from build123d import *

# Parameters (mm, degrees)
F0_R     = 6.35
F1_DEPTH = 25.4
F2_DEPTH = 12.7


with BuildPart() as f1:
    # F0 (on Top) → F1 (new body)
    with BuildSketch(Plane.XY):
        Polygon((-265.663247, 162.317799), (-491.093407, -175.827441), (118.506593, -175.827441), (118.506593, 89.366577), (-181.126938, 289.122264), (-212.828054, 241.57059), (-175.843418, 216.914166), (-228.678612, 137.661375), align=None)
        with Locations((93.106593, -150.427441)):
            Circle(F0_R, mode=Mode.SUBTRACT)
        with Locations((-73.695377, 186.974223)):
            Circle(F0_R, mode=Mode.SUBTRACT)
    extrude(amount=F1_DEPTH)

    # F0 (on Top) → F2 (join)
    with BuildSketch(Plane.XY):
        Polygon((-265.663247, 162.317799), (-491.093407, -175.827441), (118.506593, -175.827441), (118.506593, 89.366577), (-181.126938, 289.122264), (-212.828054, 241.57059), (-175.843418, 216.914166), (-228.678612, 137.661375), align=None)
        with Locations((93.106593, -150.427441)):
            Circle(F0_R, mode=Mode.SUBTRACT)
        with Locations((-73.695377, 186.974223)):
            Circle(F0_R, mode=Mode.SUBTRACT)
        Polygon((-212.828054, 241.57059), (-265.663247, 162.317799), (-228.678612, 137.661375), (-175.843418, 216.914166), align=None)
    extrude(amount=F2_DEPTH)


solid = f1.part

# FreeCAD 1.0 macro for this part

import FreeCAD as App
import Part
import Sketcher
Q = App.Units.Quantity


def add_polygon(sketch, points):
    """Adds a closed chain of lines whose ends are joined by coincident constraints."""
    first, n = sketch.GeometryCount, len(points)
    for a, b in zip(points, points[1:] + points[:1]):
        sketch.addGeometry(Part.LineSegment(App.Vector(*a, 0), App.Vector(*b, 0)), False)
    for i in range(n):
        sketch.addConstraint(Sketcher.Constraint("Coincident", first + i, 2, first + (i + 1) % n, 1))

doc = App.newDocument("Part")
body = doc.addObject("PartDesign::Body", "Body")

# Sketch on XY plane
sketch1 = doc.addObject("Sketcher::SketchObject", "Sketch")
body.addObject(sketch1)
sketch1.AttachmentSupport = (doc.XY_Plane, [""])
sketch1.MapMode = "FlatFace"
add_polygon(sketch1, [(-265.663247, 162.317799), (-491.093407, -175.827441), (118.506593, -175.827441), (118.506593, 89.366577), (-181.126938, 289.122264), (-212.828054, 241.57059), (-175.843418, 216.914166), (-228.678612, 137.661375)])  # lines 0-7
sketch1.addGeometry(Part.Circle(App.Vector(93.106593, -150.427441, 0), App.Vector(0, 0, 1), 6.35), False)  # 8
sketch1.addGeometry(Part.Circle(App.Vector(-73.695377, 186.974223, 0), App.Vector(0, 0, 1), 6.35), False)  # 9
sketch1.addConstraint(Sketcher.Constraint("Horizontal", 1))
sketch1.addConstraint(Sketcher.Constraint("Vertical", 2))
sketch1.addConstraint(Sketcher.Constraint("Equal", 8, 9))
sketch1.addConstraint(Sketcher.Constraint("Perpendicular", 0, 3))
sketch1.addConstraint(Sketcher.Constraint("Perpendicular", 3, 4))
sketch1.addConstraint(Sketcher.Constraint("Perpendicular", 4, 5))
sketch1.addConstraint(Sketcher.Constraint("Perpendicular", 5, 6))
sketch1.addConstraint(Sketcher.Constraint("Perpendicular", 6, 7))
sketch1.addConstraint(Sketcher.Constraint("Equal", 5, 7))
sketch1.addConstraint(Sketcher.Constraint("Diameter", 8, Q("0.5 in")))
sketch1.addConstraint(Sketcher.Constraint("DistanceX", 1, 1, 1, 2, Q("24 in")))
sketch1.addConstraint(Sketcher.Constraint("Distance", 0, Q("16 in")))
sketch1.addConstraint(Sketcher.Constraint("DistanceX", 0, 2, 8, 3, Q("23 in")))
sketch1.addConstraint(Sketcher.Constraint("DistanceY", 0, 2, 8, 3, Q("1 in")))
sketch1.addConstraint(Sketcher.Constraint("Distance", 4, Q("2.25 in")))
sketch1.addConstraint(Sketcher.Constraint("Distance", 5, Q("1.75 in")))
sketch1.addConstraint(Sketcher.Constraint("Distance", 6, Q("3.75 in")))
sketch1.addConstraint(Sketcher.Constraint("DistanceY", 2, 1, 2, 2, Q("265.194018 mm")))
sketch1.addConstraint(Sketcher.Constraint("DistanceY", -1, 1, 7, 2, Q("162.317799 mm")))
sketch1.addConstraint(Sketcher.Constraint("DistanceX", 3, 2, -1, 1, Q("181.126938 mm")))
sketch1.addConstraint(Sketcher.Constraint("DistanceX", 9, 3, 8, 3, Q("166.80197 mm")))
sketch1.addConstraint(Sketcher.Constraint("DistanceY", 9, 3, 3, 2, Q("102.148041 mm")))
pad1 = doc.addObject("PartDesign::Pad", "Pad")
body.addObject(pad1)
pad1.Profile = sketch1
pad1.Length = Q("1 in")

# Sketch on XY plane
sketch2 = doc.addObject("Sketcher::SketchObject", "Sketch001")
body.addObject(sketch2)
sketch2.AttachmentSupport = (doc.XY_Plane, [""])
sketch2.MapMode = "FlatFace"
add_polygon(sketch2, [(-265.663247, 162.317799), (-491.093407, -175.827441), (118.506593, -175.827441), (118.506593, 89.366577), (-181.126938, 289.122264), (-212.828054, 241.57059)])  # lines 0-5
sketch2.addGeometry(Part.Circle(App.Vector(93.106593, -150.427441, 0), App.Vector(0, 0, 1), 6.35), False)  # 6
sketch2.addGeometry(Part.Circle(App.Vector(-73.695377, 186.974223, 0), App.Vector(0, 0, 1), 6.35), False)  # 7
sketch2.addConstraint(Sketcher.Constraint("Horizontal", 1))
sketch2.addConstraint(Sketcher.Constraint("Vertical", 2))
sketch2.addConstraint(Sketcher.Constraint("Equal", 6, 7))
sketch2.addConstraint(Sketcher.Constraint("Perpendicular", 0, 3))
sketch2.addConstraint(Sketcher.Constraint("Perpendicular", 3, 4))
sketch2.addConstraint(Sketcher.Constraint("Parallel", 4, 5))
sketch2.addConstraint(Sketcher.Constraint("Diameter", 6, Q("0.5 in")))
sketch2.addConstraint(Sketcher.Constraint("DistanceX", 1, 1, 1, 2, Q("24 in")))
sketch2.addConstraint(Sketcher.Constraint("Distance", 0, Q("16 in")))
sketch2.addConstraint(Sketcher.Constraint("DistanceX", 0, 2, 6, 3, Q("23 in")))
sketch2.addConstraint(Sketcher.Constraint("DistanceY", 0, 2, 6, 3, Q("1 in")))
sketch2.addConstraint(Sketcher.Constraint("Distance", 4, Q("2.25 in")))
sketch2.addConstraint(Sketcher.Constraint("Distance", 5, Q("3.75 in")))
sketch2.addConstraint(Sketcher.Constraint("DistanceY", 2, 1, 2, 2, Q("265.194018 mm")))
sketch2.addConstraint(Sketcher.Constraint("DistanceY", -1, 1, 5, 2, Q("162.317799 mm")))
sketch2.addConstraint(Sketcher.Constraint("DistanceX", 3, 2, -1, 1, Q("181.126938 mm")))
sketch2.addConstraint(Sketcher.Constraint("DistanceX", 7, 3, 6, 3, Q("166.80197 mm")))
sketch2.addConstraint(Sketcher.Constraint("DistanceY", 7, 3, 3, 2, Q("102.148041 mm")))
pad2 = doc.addObject("PartDesign::Pad", "Pad001")
body.addObject(pad2)
pad2.Profile = sketch2
pad2.Length = Q("0.5 in")

doc.recompute()
